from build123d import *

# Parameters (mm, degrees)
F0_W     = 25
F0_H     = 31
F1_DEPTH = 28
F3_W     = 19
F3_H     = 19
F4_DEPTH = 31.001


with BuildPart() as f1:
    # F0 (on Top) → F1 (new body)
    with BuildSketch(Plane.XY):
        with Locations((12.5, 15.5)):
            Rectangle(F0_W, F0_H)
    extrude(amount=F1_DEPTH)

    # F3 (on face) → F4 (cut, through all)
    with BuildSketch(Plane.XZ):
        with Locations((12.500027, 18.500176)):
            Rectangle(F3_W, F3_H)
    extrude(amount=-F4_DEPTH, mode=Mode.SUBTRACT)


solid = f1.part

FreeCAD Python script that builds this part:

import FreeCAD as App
import Part
import Sketcher
Q = App.Units.Quantity


def add_polygon(sketch, points):
    """Adds a closed chain of lines whose ends are joined by coincident constraints."""
    first, n = sketch.GeometryCount, len(points)
    for a, b in zip(points, points[1:] + points[:1]):
        sketch.addGeometry(Part.LineSegment(App.Vector(*a, 0), App.Vector(*b, 0)), False)
    for i in range(n):
        sketch.addConstraint(Sketcher.Constraint("Coincident", first + i, 2, first + (i + 1) % n, 1))

doc = App.newDocument("Part")
body = doc.addObject("PartDesign::Body", "Body")

# Sketch on XY plane
sketch1 = doc.addObject("Sketcher::SketchObject", "Sketch")
body.addObject(sketch1)
sketch1.AttachmentSupport = (doc.XY_Plane, [""])
sketch1.MapMode = "FlatFace"
add_polygon(sketch1, [(0, 31), (0, 0), (25, 0), (25, 31)])  # lines 0-3
sketch1.addConstraint(Sketcher.Constraint("Vertical", 0))
sketch1.addConstraint(Sketcher.Constraint("Horizontal", 1))
sketch1.addConstraint(Sketcher.Constraint("Vertical", 2))
sketch1.addConstraint(Sketcher.Constraint("Horizontal", 3))
sketch1.addConstraint(Sketcher.Constraint("Coincident", 0, 2, -1, 1))
sketch1.addConstraint(Sketcher.Constraint("DistanceX", 1, 1, 1, 2, Q("25 mm")))
sketch1.addConstraint(Sketcher.Constraint("DistanceY", 0, 2, 0, 1, Q("31 mm")))
pad1 = doc.addObject("PartDesign::Pad", "Pad")
body.addObject(pad1)
pad1.Profile = sketch1
pad1.Length = 28

# Sketch on XZ plane
sketch2 = doc.addObject("Sketcher::SketchObject", "Sketch001")
body.addObject(sketch2)
sketch2.AttachmentSupport = (doc.XZ_Plane, [""])
sketch2.MapMode = "FlatFace"
add_polygon(sketch2, [(3, 28), (3, 9), (22, 9), (22, 28)])  # lines 0-3
sketch2.addConstraint(Sketcher.Constraint("Vertical", 0))
sketch2.addConstraint(Sketcher.Constraint("Horizontal", 1))
sketch2.addConstraint(Sketcher.Constraint("Vertical", 2))
sketch2.addConstraint(Sketcher.Constraint("Horizontal", 3))
sketch2.addConstraint(Sketcher.Constraint("Equal", 3, 0))
sketch2.addConstraint(Sketcher.Constraint("DistanceX", 1, 1, 1, 2, Q("19 mm")))
sketch2.addConstraint(Sketcher.Constraint("DistanceX", -1, 1, 0, 2, Q("3.000027 mm")))
sketch2.addConstraint(Sketcher.Constraint("DistanceY", -1, 1, 0, 2, Q("9.000176 mm")))
pocket1 = doc.addObject("PartDesign::Pocket", "Pocket")
body.addObject(pocket1)
pocket1.Profile = sketch2
pocket1.Type = "ThroughAll"

doc.recompute()
